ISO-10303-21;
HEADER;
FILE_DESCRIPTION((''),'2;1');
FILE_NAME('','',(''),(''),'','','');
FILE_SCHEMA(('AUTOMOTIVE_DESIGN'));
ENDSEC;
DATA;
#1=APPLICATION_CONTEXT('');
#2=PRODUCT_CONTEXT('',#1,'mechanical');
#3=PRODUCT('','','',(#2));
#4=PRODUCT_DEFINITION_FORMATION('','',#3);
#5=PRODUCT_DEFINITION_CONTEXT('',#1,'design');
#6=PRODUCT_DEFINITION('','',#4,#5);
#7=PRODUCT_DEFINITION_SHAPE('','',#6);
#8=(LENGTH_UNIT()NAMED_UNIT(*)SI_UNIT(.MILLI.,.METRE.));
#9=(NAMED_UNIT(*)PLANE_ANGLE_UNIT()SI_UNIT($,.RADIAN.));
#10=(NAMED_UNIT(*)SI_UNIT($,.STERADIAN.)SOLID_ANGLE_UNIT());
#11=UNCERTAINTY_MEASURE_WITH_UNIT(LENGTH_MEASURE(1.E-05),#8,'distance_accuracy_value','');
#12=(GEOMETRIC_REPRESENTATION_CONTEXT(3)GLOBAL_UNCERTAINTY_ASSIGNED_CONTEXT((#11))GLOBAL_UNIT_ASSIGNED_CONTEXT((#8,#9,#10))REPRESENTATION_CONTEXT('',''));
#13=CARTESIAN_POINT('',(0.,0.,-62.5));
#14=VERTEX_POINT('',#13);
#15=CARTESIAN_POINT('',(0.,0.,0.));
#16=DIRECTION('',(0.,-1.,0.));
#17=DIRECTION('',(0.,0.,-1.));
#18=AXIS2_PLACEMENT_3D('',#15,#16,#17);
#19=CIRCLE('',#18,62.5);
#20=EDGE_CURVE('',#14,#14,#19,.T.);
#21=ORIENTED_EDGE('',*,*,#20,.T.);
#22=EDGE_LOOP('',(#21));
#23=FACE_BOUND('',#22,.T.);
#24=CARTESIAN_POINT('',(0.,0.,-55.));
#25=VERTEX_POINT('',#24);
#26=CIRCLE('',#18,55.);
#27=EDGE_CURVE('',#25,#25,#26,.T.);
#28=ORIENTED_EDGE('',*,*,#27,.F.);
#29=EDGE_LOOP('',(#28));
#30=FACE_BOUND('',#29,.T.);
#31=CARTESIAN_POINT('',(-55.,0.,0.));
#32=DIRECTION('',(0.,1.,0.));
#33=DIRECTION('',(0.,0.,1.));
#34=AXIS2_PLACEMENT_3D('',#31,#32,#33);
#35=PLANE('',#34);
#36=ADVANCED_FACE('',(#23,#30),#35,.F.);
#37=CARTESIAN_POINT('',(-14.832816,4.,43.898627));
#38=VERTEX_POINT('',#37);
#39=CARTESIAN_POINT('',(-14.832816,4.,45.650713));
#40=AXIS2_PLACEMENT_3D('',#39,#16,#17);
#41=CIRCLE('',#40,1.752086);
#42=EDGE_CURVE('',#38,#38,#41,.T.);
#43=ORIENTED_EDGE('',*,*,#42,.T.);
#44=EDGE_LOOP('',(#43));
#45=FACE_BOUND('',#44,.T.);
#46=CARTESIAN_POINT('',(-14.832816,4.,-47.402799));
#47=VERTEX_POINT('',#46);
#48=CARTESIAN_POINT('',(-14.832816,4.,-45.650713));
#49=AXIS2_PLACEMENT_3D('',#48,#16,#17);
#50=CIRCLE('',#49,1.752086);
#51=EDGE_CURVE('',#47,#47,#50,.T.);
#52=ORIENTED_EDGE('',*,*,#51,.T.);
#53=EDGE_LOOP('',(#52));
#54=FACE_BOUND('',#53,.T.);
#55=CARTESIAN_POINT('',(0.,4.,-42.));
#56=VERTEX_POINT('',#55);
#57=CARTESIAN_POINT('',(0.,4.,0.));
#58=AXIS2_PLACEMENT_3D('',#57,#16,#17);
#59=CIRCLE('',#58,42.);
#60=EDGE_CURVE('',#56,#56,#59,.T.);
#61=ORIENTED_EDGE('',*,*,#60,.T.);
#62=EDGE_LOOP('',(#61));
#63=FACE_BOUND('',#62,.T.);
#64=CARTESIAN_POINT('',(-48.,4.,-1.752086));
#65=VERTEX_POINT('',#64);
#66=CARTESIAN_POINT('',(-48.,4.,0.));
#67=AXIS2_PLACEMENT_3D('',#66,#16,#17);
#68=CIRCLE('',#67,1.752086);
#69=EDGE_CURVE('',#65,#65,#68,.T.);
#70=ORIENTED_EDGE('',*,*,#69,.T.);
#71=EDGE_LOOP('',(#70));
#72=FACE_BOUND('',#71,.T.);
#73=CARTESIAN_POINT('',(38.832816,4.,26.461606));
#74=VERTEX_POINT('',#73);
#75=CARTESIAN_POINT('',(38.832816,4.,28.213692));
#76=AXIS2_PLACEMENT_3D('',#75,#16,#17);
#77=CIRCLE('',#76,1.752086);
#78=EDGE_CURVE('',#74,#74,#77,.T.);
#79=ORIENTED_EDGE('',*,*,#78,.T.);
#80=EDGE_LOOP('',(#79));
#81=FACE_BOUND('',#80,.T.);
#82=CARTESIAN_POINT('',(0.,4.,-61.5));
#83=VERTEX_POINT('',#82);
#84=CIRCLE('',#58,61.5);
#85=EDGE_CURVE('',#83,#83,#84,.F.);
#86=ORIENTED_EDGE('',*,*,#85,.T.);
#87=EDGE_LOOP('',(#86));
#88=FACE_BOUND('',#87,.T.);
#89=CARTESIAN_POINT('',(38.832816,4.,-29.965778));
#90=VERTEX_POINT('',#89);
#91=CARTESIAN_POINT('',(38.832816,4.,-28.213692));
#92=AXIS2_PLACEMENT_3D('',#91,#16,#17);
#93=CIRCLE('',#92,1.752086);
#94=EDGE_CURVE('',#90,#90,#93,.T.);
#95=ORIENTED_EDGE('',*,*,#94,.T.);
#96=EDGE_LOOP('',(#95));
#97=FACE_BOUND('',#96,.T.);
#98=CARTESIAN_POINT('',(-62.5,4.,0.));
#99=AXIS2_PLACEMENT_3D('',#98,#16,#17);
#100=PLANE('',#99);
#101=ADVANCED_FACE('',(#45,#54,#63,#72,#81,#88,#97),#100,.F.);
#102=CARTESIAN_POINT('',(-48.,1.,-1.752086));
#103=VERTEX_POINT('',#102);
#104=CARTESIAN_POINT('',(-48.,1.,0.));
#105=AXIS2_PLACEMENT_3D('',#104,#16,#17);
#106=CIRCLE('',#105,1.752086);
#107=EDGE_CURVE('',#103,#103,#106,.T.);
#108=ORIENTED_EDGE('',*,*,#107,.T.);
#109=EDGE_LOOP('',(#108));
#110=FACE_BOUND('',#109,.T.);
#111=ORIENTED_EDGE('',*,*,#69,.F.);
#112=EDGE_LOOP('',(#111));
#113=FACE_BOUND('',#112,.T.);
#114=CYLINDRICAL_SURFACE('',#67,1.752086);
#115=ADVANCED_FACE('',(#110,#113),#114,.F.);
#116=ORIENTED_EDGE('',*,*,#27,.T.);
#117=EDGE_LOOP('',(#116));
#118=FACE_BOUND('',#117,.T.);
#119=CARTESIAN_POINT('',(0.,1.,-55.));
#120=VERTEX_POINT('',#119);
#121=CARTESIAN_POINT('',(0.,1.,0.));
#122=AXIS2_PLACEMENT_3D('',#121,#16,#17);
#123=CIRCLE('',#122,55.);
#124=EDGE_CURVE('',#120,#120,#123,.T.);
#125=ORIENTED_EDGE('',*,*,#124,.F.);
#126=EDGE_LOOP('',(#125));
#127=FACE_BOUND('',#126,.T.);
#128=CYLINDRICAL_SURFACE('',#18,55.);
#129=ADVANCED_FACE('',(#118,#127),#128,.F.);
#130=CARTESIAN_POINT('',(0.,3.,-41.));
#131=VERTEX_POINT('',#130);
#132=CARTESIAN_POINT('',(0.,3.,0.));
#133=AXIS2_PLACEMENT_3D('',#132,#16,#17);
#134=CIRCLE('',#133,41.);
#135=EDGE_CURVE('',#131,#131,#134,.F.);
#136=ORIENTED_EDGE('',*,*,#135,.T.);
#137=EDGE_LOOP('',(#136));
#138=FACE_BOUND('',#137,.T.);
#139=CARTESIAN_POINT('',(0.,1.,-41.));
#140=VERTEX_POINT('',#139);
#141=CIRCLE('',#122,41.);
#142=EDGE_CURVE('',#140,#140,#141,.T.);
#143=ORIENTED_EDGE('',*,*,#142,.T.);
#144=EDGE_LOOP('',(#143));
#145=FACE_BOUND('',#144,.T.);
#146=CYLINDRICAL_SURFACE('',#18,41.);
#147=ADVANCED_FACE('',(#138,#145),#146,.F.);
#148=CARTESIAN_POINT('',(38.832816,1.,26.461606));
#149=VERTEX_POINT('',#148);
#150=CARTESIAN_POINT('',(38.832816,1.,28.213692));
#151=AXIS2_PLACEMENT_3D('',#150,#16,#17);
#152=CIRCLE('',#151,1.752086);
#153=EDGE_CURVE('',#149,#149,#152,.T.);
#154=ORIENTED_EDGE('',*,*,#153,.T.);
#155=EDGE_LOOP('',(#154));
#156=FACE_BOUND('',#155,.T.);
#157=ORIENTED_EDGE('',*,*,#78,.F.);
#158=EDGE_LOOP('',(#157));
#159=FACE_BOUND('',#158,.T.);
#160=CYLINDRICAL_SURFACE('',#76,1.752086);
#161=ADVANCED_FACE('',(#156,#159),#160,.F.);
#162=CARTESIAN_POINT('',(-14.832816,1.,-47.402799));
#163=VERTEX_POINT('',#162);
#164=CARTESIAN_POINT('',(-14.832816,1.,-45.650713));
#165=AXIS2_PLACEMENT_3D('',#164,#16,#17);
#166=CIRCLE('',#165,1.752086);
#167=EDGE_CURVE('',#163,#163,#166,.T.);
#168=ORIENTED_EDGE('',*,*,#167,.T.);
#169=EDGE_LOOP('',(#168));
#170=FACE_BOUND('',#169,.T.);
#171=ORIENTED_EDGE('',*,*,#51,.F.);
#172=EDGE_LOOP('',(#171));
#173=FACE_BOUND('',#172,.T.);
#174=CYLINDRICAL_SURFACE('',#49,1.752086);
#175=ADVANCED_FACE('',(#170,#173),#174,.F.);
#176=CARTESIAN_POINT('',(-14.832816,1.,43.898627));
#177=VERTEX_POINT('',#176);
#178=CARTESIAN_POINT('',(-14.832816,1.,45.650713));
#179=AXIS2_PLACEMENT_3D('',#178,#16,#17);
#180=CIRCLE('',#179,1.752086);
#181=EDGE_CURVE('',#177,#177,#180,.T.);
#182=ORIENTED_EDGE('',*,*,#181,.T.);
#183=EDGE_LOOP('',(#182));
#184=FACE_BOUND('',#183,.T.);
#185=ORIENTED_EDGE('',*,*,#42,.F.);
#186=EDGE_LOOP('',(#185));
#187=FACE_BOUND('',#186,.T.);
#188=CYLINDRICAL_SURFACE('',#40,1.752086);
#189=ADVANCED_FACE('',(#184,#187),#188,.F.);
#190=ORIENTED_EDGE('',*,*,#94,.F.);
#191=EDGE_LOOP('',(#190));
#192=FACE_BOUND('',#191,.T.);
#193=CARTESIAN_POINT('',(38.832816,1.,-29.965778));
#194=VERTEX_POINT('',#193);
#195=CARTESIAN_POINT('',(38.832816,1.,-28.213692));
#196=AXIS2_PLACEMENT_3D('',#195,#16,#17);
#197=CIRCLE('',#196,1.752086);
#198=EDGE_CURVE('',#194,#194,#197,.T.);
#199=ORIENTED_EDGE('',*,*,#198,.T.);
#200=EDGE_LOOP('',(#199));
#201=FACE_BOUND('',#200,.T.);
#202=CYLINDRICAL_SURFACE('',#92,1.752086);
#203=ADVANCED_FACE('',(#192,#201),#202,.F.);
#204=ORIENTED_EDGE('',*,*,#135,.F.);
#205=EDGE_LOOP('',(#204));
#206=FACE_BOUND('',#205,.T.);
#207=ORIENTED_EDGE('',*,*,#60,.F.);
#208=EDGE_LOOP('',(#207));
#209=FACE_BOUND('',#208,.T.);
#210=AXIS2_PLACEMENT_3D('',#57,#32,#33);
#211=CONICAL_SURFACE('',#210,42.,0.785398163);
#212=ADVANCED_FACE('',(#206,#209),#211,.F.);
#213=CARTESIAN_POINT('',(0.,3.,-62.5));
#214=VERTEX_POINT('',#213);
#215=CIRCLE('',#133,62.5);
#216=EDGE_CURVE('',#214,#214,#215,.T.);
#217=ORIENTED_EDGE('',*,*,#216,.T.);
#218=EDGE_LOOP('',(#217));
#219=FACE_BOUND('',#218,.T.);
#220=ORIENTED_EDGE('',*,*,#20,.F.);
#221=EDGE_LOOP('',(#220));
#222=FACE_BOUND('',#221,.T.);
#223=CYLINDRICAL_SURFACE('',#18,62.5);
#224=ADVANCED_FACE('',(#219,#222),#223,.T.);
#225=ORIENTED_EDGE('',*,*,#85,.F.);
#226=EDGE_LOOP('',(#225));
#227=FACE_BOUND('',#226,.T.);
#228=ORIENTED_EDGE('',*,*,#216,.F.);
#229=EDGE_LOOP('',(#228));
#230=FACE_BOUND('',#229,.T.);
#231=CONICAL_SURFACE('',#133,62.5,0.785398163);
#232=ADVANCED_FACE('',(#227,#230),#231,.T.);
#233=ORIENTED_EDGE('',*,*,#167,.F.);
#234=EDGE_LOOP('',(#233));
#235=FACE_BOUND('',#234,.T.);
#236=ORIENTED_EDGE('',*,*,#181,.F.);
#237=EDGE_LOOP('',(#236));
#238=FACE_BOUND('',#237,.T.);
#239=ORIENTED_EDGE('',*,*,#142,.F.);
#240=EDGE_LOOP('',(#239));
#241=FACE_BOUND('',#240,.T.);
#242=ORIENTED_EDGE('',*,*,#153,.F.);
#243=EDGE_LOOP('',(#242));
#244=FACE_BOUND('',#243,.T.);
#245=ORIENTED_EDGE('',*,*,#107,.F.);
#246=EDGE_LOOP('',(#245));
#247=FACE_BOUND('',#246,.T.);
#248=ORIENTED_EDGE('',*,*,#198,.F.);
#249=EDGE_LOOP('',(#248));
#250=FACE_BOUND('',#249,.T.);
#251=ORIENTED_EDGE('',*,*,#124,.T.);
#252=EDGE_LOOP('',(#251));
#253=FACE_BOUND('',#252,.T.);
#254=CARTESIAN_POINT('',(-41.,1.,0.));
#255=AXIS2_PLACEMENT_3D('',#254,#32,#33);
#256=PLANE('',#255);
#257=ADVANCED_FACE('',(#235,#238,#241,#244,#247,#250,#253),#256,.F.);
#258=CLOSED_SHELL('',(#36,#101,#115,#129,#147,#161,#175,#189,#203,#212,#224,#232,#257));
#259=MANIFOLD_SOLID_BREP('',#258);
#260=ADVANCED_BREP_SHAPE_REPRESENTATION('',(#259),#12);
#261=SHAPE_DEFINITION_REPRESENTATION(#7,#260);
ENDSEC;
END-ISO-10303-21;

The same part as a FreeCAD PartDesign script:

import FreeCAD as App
import Part
import Sketcher
Q = App.Units.Quantity


def edges_at(feature, points):
    """Names of the edges that pass closest to the given points."""
    edges = feature.Shape.Edges
    near = lambda p: min(range(len(edges)), key=lambda i: edges[i].distToShape(Part.Vertex(*p))[0])
    return sorted({f"Edge{near(p) + 1}" for p in points})

doc = App.newDocument("Part")
params = doc.addObject("Spreadsheet::Sheet", "Params")
for row, (alias, value) in enumerate([
    ("sketch1_width", "14 mm"),
    ("sketch1_height", "1 mm"),
    ("sketch1_height2", "3 mm"),
    ("sketch1_width2", "21.5 mm"),
    ("revolution_angle", "360 deg"),
    ("chamfer_size", "1 mm"),
], start=1):
    params.set(f"A{row}", alias)
    params.set(f"B{row}", "=" + value)
    params.setAlias(f"B{row}", alias)

body = doc.addObject("PartDesign::Body", "Body")

sketch1 = body.newObject("Sketcher::SketchObject", "Sketch")
sketch1.AttachmentSupport = (doc.getObject("XY_Plane"), [""])
sketch1.MapMode = "FlatFace"
sketch1.addGeometry([
    Part.LineSegment(App.Vector(-55, 0, 0), App.Vector(-55, 1, 0)),
    Part.LineSegment(App.Vector(-55, 1, 0), App.Vector(-41, 1, 0)),
    Part.LineSegment(App.Vector(-41, 1, 0), App.Vector(-41, 4, 0)),
    Part.LineSegment(App.Vector(-41, 4, 0), App.Vector(-62.5, 4, 0)),
    Part.LineSegment(App.Vector(-62.5, 4, 0), App.Vector(-62.5, 0, 0)),
    Part.LineSegment(App.Vector(-62.5, 0, 0), App.Vector(-55, 0, 0)),
], False)
sketch1.addConstraint([
    Sketcher.Constraint("Coincident", 0, 2, 1, 1),
    Sketcher.Constraint("Coincident", 1, 2, 2, 1),
    Sketcher.Constraint("Coincident", 2, 2, 3, 1),
    Sketcher.Constraint("Coincident", 3, 2, 4, 1),
    Sketcher.Constraint("Coincident", 4, 2, 5, 1),
    Sketcher.Constraint("Coincident", 5, 2, 0, 1),
    Sketcher.Constraint("Vertical", 0),
    Sketcher.Constraint("Horizontal", 1),
    Sketcher.Constraint("Vertical", 2),
    Sketcher.Constraint("Horizontal", 3),
    Sketcher.Constraint("Vertical", 4),
    Sketcher.Constraint("Horizontal", 5),
    Sketcher.Constraint("PointOnObject", 4, 2, -1),
    Sketcher.Constraint("DistanceX", 1, 1, 1, 2, Q("14 mm")),
    Sketcher.Constraint("DistanceY", 0, 1, 0, 2, Q("1 mm")),
    Sketcher.Constraint("DistanceY", 2, 1, 2, 2, Q("3 mm")),
    Sketcher.Constraint("DistanceX", 3, 2, 3, 1, Q("21.5 mm")),
    Sketcher.Constraint("DistanceX", 0, 2, -1, 1, Q("55 mm")),
])
sketch1.setExpression("Constraints[13]", "Params.sketch1_width")
sketch1.setExpression("Constraints[14]", "Params.sketch1_height")
sketch1.setExpression("Constraints[15]", "Params.sketch1_height2")
sketch1.setExpression("Constraints[16]", "Params.sketch1_width2")
revolution = body.newObject("PartDesign::Revolution", "Revolution")
revolution.Profile = sketch1
revolution.ReferenceAxis = (sketch1, ["V_Axis"])
revolution.setExpression("Angle", "Params.revolution_angle")

sketch2 = body.newObject("Sketcher::SketchObject", "Sketch001")
sketch2.AttachmentSupport = (doc.getObject("XZ_Plane"), [""])
sketch2.MapMode = "FlatFace"
sketch2.AttachmentOffset = App.Placement(App.Vector(0, 0, -1), App.Rotation())
sketch2.addGeometry([
    Part.Circle(App.Vector(-48, 0, 0), App.Vector(0, 0, 1), 1.8),
    Part.Circle(App.Vector(-14.8, 45.7, 0), App.Vector(0, 0, 1), 1.8),
    Part.Circle(App.Vector(38.8, 28.2, 0), App.Vector(0, 0, 1), 1.8),
    Part.Circle(App.Vector(38.8, -28.2, 0), App.Vector(0, 0, 1), 1.8),
    Part.Circle(App.Vector(-14.8, -45.7, 0), App.Vector(0, 0, 1), 1.8),
], False)
sketch2.addConstraint([
    Sketcher.Constraint("Equal", 0, 1),
    Sketcher.Constraint("Equal", 1, 2),
    Sketcher.Constraint("Equal", 2, 3),
    Sketcher.Constraint("Equal", 3, 4),
    Sketcher.Constraint("Symmetric", 2, 3, 3, 3, -1),
    Sketcher.Constraint("Symmetric", 1, 3, 4, 3, -1),
    Sketcher.Constraint("PointOnObject", 0, 3, -1),
    Sketcher.Constraint("DistanceX", 0, 3, -1, 1, Q("48 mm")),
    Sketcher.Constraint("Diameter", 0, Q("3.504171 mm")),
    Sketcher.Constraint("DistanceX", 1, 3, 2, 3, Q("53.665631 mm")),
    Sketcher.Constraint("DistanceY", 2, 3, 1, 3, Q("17.437021 mm")),
    Sketcher.Constraint("DistanceX", 1, 3, -1, 1, Q("14.832816 mm")),
    Sketcher.Constraint("DistanceY", -1, 1, 1, 3, Q("45.650713 mm")),
])
pocket1 = body.newObject("PartDesign::Pocket", "Pocket")
pocket1.Profile = sketch2
pocket1.Type = "ThroughAll"
doc.recompute()

chamfer = body.newObject("PartDesign::Chamfer", "Chamfer")
chamfer.Base = (pocket1, edges_at(pocket1, [(62.5, 4, 0), (41, 4, 0)]))
chamfer.setExpression("Size", "Params.chamfer_size")

doc.recompute()
